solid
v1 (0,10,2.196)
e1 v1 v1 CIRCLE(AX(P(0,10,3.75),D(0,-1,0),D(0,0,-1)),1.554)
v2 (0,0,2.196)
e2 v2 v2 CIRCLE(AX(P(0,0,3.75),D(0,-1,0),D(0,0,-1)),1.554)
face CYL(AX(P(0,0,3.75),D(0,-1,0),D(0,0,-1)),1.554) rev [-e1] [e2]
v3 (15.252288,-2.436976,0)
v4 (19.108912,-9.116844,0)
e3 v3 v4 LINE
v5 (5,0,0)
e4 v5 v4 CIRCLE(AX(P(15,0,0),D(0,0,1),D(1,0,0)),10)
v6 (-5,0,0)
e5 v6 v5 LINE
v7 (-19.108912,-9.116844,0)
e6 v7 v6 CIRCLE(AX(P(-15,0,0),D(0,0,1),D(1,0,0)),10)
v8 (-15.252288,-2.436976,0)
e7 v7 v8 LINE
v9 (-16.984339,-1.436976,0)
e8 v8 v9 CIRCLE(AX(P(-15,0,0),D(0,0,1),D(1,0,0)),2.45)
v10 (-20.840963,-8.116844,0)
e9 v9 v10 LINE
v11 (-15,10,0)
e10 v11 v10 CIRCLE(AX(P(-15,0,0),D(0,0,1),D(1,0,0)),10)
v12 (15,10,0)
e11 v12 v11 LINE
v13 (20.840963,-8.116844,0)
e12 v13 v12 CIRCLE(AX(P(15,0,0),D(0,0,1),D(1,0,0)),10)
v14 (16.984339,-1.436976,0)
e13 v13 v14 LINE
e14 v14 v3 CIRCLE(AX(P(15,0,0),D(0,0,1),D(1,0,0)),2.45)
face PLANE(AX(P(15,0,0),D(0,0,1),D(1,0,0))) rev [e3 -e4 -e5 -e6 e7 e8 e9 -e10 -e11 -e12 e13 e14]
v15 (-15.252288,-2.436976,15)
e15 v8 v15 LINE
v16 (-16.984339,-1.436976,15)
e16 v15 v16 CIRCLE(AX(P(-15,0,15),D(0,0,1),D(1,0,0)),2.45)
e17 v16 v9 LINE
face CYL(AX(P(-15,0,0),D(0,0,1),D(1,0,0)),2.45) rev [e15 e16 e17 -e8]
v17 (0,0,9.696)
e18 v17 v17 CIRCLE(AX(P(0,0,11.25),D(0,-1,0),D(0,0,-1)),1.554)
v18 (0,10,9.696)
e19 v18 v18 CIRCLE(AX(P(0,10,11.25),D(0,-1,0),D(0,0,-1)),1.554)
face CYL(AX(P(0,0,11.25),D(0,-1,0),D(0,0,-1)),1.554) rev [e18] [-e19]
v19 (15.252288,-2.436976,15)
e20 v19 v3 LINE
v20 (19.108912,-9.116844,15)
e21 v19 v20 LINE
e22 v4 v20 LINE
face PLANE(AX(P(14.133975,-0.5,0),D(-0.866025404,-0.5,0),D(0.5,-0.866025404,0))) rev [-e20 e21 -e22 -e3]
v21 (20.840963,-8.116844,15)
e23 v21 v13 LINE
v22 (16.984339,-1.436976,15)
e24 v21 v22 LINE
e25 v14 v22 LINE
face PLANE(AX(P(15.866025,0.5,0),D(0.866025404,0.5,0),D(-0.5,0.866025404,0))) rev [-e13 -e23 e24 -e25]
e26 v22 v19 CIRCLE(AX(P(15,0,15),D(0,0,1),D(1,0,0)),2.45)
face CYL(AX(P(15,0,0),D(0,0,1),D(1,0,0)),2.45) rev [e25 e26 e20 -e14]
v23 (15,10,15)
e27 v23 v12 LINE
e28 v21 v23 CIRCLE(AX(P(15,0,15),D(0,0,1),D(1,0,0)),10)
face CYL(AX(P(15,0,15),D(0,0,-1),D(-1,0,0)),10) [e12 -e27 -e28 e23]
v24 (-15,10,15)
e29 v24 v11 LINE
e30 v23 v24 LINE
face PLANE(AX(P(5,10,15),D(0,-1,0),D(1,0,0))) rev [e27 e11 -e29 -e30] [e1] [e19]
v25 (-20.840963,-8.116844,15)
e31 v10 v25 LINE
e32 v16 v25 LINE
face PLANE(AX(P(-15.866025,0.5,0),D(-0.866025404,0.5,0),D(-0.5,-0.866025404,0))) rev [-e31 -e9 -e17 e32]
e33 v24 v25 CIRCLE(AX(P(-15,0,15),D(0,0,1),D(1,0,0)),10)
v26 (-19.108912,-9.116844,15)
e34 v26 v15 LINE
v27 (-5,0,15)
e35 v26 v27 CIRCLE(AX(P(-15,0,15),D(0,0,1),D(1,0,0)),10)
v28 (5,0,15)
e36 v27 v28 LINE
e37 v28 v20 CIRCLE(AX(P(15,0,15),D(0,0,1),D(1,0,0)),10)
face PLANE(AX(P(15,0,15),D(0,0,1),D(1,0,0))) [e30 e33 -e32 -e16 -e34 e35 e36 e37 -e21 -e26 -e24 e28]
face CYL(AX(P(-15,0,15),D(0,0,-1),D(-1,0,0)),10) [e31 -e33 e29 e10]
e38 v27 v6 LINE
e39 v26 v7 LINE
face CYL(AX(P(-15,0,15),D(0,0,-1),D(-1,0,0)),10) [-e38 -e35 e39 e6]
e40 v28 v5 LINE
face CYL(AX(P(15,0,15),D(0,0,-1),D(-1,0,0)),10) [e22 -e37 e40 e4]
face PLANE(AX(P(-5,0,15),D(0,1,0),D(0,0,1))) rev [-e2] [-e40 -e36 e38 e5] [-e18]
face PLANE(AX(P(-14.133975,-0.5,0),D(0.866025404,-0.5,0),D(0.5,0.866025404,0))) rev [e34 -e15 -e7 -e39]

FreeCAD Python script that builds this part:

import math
import FreeCAD as App
import Part
import Sketcher
from FreeCAD import Vector
Q = App.Units.Quantity

doc = App.newDocument("Part")
body = doc.addObject("PartDesign::Body", "Body")

# Sketch on XY plane
sketch1 = body.newObject("Sketcher::SketchObject", "Sketch")
sketch1.AttachmentSupport = (doc.getObject("XY_Plane"), [""])
sketch1.MapMode = "FlatFace"
sketch1.addGeometry(Part.ArcOfCircle(Part.Circle(Vector(-15, 0, 0), Vector(0, 0, 1), 10), math.radians(90), math.radians(360)), False)
sketch1.addGeometry(Part.LineSegment(Vector(-5, 0, 0), Vector(5, 0, 0)), False)
sketch1.addGeometry(Part.ArcOfCircle(Part.Circle(Vector(15, 0, 0), Vector(0, 0, 1), 10), math.radians(180), math.radians(450)), False)
sketch1.addGeometry(Part.LineSegment(Vector(15, 10, 0), Vector(-15, 10, 0)), False)
sketch1.addConstraint(Sketcher.Constraint("Coincident", 0, 2, 1, 1))
sketch1.addConstraint(Sketcher.Constraint("Coincident", 1, 2, 2, 1))
sketch1.addConstraint(Sketcher.Constraint("Tangent", 2, 2, 3, 1))
sketch1.addConstraint(Sketcher.Constraint("Tangent", 3, 2, 0, 1))
sketch1.addConstraint(Sketcher.Constraint("Horizontal", 1))
sketch1.addConstraint(Sketcher.Constraint("Horizontal", 3))
sketch1.addConstraint(Sketcher.Constraint("Equal", 0, 2))
sketch1.addConstraint(Sketcher.Constraint("Symmetric", 0, 3, 2, 3, -1, 1))
sketch1.addConstraint(Sketcher.Constraint("PointOnObject", 0, 2, -1))
sketch1.addConstraint(Sketcher.Constraint("Radius", 0, 10.0))
sketch1.addConstraint(Sketcher.Constraint("DistanceX", 1, 1, 1, 2, 10.0))
pad1 = body.newObject("PartDesign::Pad", "Pad")
pad1.Profile = sketch1
pad1.Length = 15

# Sketch on XY plane
sketch2 = body.newObject("Sketcher::SketchObject", "Sketch001")
sketch2.AttachmentSupport = (doc.getObject("XY_Plane"), [""])
sketch2.MapMode = "FlatFace"
sketch2.AttachmentOffset = App.Placement(Vector(0, 0, 15), App.Rotation())
sketch2.addGeometry(Part.Circle(Vector(-15, 0, 0), Vector(0, 0, 1), 2.5), False)
sketch2.addGeometry(Part.Circle(Vector(15, 0, 0), Vector(0, 0, 1), 2.5), False)
sketch2.addConstraint(Sketcher.Constraint("Equal", 0, 1))
sketch2.addConstraint(Sketcher.Constraint("Symmetric", 0, 3, 1, 3, -1, 1))
sketch2.addConstraint(Sketcher.Constraint("PointOnObject", 0, 3, -1))
sketch2.addConstraint(Sketcher.Constraint("Diameter", 0, 4.9))
sketch2.addConstraint(Sketcher.Constraint("DistanceX", 0, 3, -1, 1, 15.0))
pocket1 = body.newObject("PartDesign::Pocket", "Pocket")
pocket1.Profile = sketch2
pocket1.Type = "ThroughAll"

# Sketch on XY plane
sketch3 = body.newObject("Sketcher::SketchObject", "Sketch002")
sketch3.AttachmentSupport = (doc.getObject("XY_Plane"), [""])
sketch3.MapMode = "FlatFace"
sketch3.AttachmentOffset = App.Placement(Vector(0, 0, 15), App.Rotation())
sketch3.addGeometry(Part.LineSegment(Vector(-14.1, -0.5, 0), Vector(-15.9, 0.5, 0)), False)
sketch3.addGeometry(Part.LineSegment(Vector(-15.9, 0.5, 0), Vector(-20.9, -8.2, 0)), False)
sketch3.addGeometry(Part.LineSegment(Vector(-20.9, -8.2, 0), Vector(-19.1, -9.2, 0)), False)
sketch3.addGeometry(Part.LineSegment(Vector(-19.1, -9.2, 0), Vector(-14.1, -0.5, 0)), False)
sketch3.addGeometry(Part.LineSegment(Vector(15.9, 0.5, 0), Vector(14.1, -0.5, 0)), False)
sketch3.addGeometry(Part.LineSegment(Vector(14.1, -0.5, 0), Vector(19.1, -9.2, 0)), False)
sketch3.addGeometry(Part.LineSegment(Vector(19.1, -9.2, 0), Vector(20.9, -8.2, 0)), False)
sketch3.addGeometry(Part.LineSegment(Vector(20.9, -8.2, 0), Vector(15.9, 0.5, 0)), False)
sketch3.addConstraint(Sketcher.Constraint("Coincident", 0, 2, 1, 1))
sketch3.addConstraint(Sketcher.Constraint("Coincident", 1, 2, 2, 1))
sketch3.addConstraint(Sketcher.Constraint("Coincident", 2, 2, 3, 1))
sketch3.addConstraint(Sketcher.Constraint("Coincident", 3, 2, 0, 1))
sketch3.addConstraint(Sketcher.Constraint("Coincident", 4, 2, 5, 1))
sketch3.addConstraint(Sketcher.Constraint("Coincident", 5, 2, 6, 1))
sketch3.addConstraint(Sketcher.Constraint("Coincident", 6, 2, 7, 1))
sketch3.addConstraint(Sketcher.Constraint("Coincident", 7, 2, 4, 1))
sketch3.addConstraint(Sketcher.Constraint("Symmetric", 3, 2, 4, 2, -2))
sketch3.addConstraint(Sketcher.Constraint("Symmetric", 2, 2, 5, 2, -2))
sketch3.addConstraint(Sketcher.Constraint("Symmetric", 1, 2, 6, 2, -2))
sketch3.addConstraint(Sketcher.Constraint("Symmetric", 0, 2, 7, 2, -2))
sketch3.addConstraint(Sketcher.Constraint("Perpendicular", 0, 1))
sketch3.addConstraint(Sketcher.Constraint("Perpendicular", 1, 2))
sketch3.addConstraint(Sketcher.Constraint("Perpendicular", 2, 3))
sketch3.addConstraint(Sketcher.Constraint("Angle", 0, Q("150 deg")))
sketch3.addConstraint(Sketcher.Constraint("Distance", 0, 2.0))
sketch3.addConstraint(Sketcher.Constraint("Distance", 1, 10.0))
sketch3.addConstraint(Sketcher.Constraint("DistanceX", 0, 2, 4, 2, 30.0))
sketch3.addConstraint(Sketcher.Constraint("DistanceY", -1, 1, 0, 2, 0.5))
pocket2 = body.newObject("PartDesign::Pocket", "Pocket001")
pocket2.Profile = sketch3
pocket2.Type = "ThroughAll"

# Sketch on XZ plane
sketch4 = body.newObject("Sketcher::SketchObject", "Sketch003")
sketch4.AttachmentSupport = (doc.getObject("XZ_Plane"), [""])
sketch4.MapMode = "FlatFace"
sketch4.addGeometry(Part.Circle(Vector(0, 3.8, 0), Vector(0, 0, 1), 1.6), False)
sketch4.addGeometry(Part.Circle(Vector(0, 11.2, 0), Vector(0, 0, 1), 1.6), False)
sketch4.addConstraint(Sketcher.Constraint("Equal", 0, 1))
sketch4.addConstraint(Sketcher.Constraint("PointOnObject", 0, 3, -2))
sketch4.addConstraint(Sketcher.Constraint("PointOnObject", 1, 3, -2))
sketch4.addConstraint(Sketcher.Constraint("Diameter", 0, 3.108))
sketch4.addConstraint(Sketcher.Constraint("DistanceY", 0, 3, 1, 3, 7.5))
sketch4.addConstraint(Sketcher.Constraint("DistanceY", -1, 1, 0, 3, 3.75))
doc.recompute()
hole = body.newObject("PartDesign::Hole", "Hole")
hole.Profile = sketch4
hole.ThreadType = "None"
hole.Diameter = 3.108
hole.DepthType = "ThroughAll"

doc.recompute()
